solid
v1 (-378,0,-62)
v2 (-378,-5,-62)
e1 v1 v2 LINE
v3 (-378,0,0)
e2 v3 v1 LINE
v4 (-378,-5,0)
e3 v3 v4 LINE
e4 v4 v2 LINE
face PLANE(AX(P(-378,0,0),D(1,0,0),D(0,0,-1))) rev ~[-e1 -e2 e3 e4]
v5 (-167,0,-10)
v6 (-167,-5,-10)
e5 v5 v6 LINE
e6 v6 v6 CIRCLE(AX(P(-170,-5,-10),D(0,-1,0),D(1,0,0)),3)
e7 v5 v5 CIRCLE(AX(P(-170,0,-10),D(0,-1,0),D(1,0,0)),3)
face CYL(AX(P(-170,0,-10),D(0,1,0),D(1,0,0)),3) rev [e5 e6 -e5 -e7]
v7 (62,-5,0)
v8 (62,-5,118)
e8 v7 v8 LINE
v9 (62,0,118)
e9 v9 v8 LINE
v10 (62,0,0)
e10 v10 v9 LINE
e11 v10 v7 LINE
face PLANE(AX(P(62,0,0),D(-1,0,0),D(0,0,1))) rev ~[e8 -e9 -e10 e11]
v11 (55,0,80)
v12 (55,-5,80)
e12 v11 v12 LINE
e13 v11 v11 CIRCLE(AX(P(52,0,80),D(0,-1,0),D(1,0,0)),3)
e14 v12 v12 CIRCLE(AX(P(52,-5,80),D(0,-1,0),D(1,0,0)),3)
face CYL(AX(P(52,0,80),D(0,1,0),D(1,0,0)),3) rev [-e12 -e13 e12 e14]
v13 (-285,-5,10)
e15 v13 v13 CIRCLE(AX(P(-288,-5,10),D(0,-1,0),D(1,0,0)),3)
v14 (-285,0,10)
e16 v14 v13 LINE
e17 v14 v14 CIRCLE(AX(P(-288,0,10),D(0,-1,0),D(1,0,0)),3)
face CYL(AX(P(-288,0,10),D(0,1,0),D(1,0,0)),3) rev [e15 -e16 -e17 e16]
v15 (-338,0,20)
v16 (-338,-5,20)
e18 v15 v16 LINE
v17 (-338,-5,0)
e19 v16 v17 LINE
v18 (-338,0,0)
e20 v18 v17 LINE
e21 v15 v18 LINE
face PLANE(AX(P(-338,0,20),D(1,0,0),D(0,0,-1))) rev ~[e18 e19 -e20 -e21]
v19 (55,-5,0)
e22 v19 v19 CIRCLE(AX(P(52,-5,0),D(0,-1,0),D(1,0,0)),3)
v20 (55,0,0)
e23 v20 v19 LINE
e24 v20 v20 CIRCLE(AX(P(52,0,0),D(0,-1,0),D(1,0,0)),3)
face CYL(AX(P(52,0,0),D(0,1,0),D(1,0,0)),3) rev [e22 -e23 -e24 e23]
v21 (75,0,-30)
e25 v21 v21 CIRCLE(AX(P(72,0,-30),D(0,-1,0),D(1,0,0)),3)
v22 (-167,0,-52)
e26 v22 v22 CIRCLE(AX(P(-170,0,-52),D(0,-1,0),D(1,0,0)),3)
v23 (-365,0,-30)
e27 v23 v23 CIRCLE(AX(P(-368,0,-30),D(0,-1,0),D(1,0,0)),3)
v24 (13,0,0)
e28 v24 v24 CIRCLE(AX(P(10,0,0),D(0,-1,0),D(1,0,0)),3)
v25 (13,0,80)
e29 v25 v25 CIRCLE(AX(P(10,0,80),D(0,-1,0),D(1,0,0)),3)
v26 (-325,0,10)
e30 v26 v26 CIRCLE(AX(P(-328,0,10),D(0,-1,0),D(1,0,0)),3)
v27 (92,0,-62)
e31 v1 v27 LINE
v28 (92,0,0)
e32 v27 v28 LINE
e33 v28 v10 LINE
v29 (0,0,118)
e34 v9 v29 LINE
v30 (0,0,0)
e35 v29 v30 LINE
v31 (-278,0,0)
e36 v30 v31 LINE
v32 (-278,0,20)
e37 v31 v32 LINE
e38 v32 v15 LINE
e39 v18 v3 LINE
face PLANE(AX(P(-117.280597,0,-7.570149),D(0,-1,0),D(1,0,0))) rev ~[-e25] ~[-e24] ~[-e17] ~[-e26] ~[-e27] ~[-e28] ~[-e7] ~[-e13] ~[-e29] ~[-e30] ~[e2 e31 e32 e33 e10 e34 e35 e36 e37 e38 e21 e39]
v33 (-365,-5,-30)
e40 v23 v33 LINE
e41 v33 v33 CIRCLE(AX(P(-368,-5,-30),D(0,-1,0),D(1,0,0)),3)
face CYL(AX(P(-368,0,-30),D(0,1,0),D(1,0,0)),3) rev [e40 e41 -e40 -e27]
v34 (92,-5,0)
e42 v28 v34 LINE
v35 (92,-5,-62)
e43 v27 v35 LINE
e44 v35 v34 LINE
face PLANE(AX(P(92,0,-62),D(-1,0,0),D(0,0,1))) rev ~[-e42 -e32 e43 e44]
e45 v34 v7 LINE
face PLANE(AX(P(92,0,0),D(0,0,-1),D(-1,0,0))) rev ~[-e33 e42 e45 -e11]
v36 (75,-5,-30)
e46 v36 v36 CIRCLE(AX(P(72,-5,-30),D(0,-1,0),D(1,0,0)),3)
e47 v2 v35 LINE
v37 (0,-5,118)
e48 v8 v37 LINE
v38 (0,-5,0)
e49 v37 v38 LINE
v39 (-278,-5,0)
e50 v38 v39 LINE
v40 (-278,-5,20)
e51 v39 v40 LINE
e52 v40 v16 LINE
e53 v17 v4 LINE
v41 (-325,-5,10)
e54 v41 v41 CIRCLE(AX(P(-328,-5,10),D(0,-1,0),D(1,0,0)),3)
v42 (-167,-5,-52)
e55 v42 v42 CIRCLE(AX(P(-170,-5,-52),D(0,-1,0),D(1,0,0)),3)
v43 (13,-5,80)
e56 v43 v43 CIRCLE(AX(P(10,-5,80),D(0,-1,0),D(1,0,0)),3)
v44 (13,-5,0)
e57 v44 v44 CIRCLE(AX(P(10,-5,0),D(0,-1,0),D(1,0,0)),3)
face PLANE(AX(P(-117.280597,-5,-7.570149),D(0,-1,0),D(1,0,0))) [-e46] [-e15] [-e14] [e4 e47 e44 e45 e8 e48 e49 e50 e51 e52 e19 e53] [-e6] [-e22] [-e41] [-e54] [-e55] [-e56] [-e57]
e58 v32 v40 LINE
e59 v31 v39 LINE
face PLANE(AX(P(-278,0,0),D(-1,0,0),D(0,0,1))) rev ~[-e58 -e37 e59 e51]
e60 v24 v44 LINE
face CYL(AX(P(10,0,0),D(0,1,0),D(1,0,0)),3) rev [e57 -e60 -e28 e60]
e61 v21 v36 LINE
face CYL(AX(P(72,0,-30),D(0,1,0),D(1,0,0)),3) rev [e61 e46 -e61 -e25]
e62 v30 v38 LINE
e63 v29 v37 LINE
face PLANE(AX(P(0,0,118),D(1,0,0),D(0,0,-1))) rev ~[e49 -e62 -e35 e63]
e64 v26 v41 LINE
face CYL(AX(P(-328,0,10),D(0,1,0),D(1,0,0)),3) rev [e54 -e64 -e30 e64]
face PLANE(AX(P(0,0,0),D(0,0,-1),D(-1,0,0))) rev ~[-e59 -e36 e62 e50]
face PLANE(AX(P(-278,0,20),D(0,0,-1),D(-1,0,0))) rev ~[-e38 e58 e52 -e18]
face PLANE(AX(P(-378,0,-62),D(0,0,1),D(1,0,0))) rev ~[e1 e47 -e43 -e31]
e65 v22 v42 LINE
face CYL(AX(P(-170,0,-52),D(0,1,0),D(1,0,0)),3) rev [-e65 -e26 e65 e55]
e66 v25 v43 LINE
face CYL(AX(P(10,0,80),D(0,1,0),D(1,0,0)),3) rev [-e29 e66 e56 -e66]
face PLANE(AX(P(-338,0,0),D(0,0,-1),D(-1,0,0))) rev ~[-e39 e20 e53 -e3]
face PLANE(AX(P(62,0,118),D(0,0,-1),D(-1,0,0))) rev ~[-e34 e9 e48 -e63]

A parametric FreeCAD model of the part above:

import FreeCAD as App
import Part
import Sketcher

V = App.Vector
Q = App.Units.Quantity


def add_polygon(sketch, points):
    """Adds a closed chain of lines whose ends are joined by coincident constraints."""
    first, n = sketch.GeometryCount, len(points)
    for a, b in zip(points, points[1:] + points[:1]):
        sketch.addGeometry(Part.LineSegment(App.Vector(*a, 0), App.Vector(*b, 0)), False)
    for i in range(n):
        sketch.addConstraint(Sketcher.Constraint("Coincident", first + i, 2, first + (i + 1) % n, 1))

doc = App.newDocument("Part")
body = doc.addObject("PartDesign::Body", "Body")

# Sketch on XZ plane
sketch1 = body.newObject("Sketcher::SketchObject", "Sketch")
sketch1.AttachmentSupport = (doc.getObject("XZ_Plane"), [""])
sketch1.MapMode = "FlatFace"
add_polygon(sketch1, [(62, 118), (0, 118), (0, 0), (-278, 0), (-278, 20), (-338, 20), (-338, 0), (-378, 0), (-378, -62), (92, -62), (92, 0), (62, 0)])  # lines 0-11
sketch1.addGeometry(Part.Circle(V(-368, -30, 0), V(0, 0, 1), 3), False)  # 12
sketch1.addGeometry(Part.Circle(V(-170, -52, 0), V(0, 0, 1), 3), False)  # 13
sketch1.addGeometry(Part.Circle(V(-328, 10, 0), V(0, 0, 1), 3), False)  # 14
sketch1.addGeometry(Part.Circle(V(-288, 10, 0), V(0, 0, 1), 3), False)  # 15
sketch1.addGeometry(Part.Circle(V(-170, -10, 0), V(0, 0, 1), 3), False)  # 16
sketch1.addGeometry(Part.Circle(V(72, -30, 0), V(0, 0, 1), 3), False)  # 17
sketch1.addGeometry(Part.Circle(V(10, 0, 0), V(0, 0, 1), 3), False)  # 18
sketch1.addGeometry(Part.Circle(V(52, 0, 0), V(0, 0, 1), 3), False)  # 19
sketch1.addGeometry(Part.Circle(V(10, 80, 0), V(0, 0, 1), 3), False)  # 20
sketch1.addGeometry(Part.Circle(V(52, 80, 0), V(0, 0, 1), 3), False)  # 21
sketch1.addConstraint(Sketcher.Constraint("Horizontal", 0))
sketch1.addConstraint(Sketcher.Constraint("Vertical", 1))
sketch1.addConstraint(Sketcher.Constraint("Horizontal", 2))
sketch1.addConstraint(Sketcher.Constraint("Vertical", 3))
sketch1.addConstraint(Sketcher.Constraint("Horizontal", 4))
sketch1.addConstraint(Sketcher.Constraint("Vertical", 5))
sketch1.addConstraint(Sketcher.Constraint("Horizontal", 6))
sketch1.addConstraint(Sketcher.Constraint("Vertical", 7))
sketch1.addConstraint(Sketcher.Constraint("Horizontal", 8))
sketch1.addConstraint(Sketcher.Constraint("Vertical", 9))
sketch1.addConstraint(Sketcher.Constraint("Horizontal", 10))
sketch1.addConstraint(Sketcher.Constraint("Vertical", 11))
sketch1.addConstraint(Sketcher.Constraint("Coincident", 1, 2, -1, 1))
sketch1.addConstraint(Sketcher.Constraint("Equal", 12, 13))
sketch1.addConstraint(Sketcher.Constraint("Equal", 13, 14))
sketch1.addConstraint(Sketcher.Constraint("Equal", 14, 15))
sketch1.addConstraint(Sketcher.Constraint("Equal", 15, 16))
sketch1.addConstraint(Sketcher.Constraint("Equal", 16, 17))
sketch1.addConstraint(Sketcher.Constraint("Equal", 17, 18))
sketch1.addConstraint(Sketcher.Constraint("Equal", 18, 19))
sketch1.addConstraint(Sketcher.Constraint("Equal", 19, 20))
sketch1.addConstraint(Sketcher.Constraint("Equal", 20, 21))
sketch1.addConstraint(Sketcher.Constraint("PointOnObject", 18, 3, -1))
sketch1.addConstraint(Sketcher.Constraint("PointOnObject", 19, 3, -1))
sketch1.addConstraint(Sketcher.Constraint("PointOnObject", 5, 2, -1))
sketch1.addConstraint(Sketcher.Constraint("PointOnObject", 9, 2, -1))
sketch1.addConstraint(Sketcher.Constraint("Horizontal", 14, 3, 15, 3))
sketch1.addConstraint(Sketcher.Constraint("Horizontal", 12, 3, 17, 3))
sketch1.addConstraint(Sketcher.Constraint("Horizontal", 20, 3, 21, 3))
sketch1.addConstraint(Sketcher.Constraint("Vertical", 13, 3, 16, 3))
sketch1.addConstraint(Sketcher.Constraint("Vertical", 18, 3, 20, 3))
sketch1.addConstraint(Sketcher.Constraint("Vertical", 19, 3, 21, 3))
sketch1.addConstraint(Sketcher.Constraint("Equal", 0, 7))
sketch1.addConstraint(Sketcher.Constraint("Diameter", 12, Q("6 mm")))
sketch1.addConstraint(Sketcher.Constraint("DistanceX", 0, 2, 0, 1, Q("62 mm")))
sketch1.addConstraint(Sketcher.Constraint("DistanceX", 2, 2, 2, 1, Q("278 mm")))
sketch1.addConstraint(Sketcher.Constraint("DistanceX", 4, 2, 4, 1, Q("60 mm")))
sketch1.addConstraint(Sketcher.Constraint("DistanceX", 6, 2, 6, 1, Q("40 mm")))
sketch1.addConstraint(Sketcher.Constraint("DistanceX", 8, 1, 8, 2, Q("470 mm")))
sketch1.addConstraint(Sketcher.Constraint("DistanceY", 1, 2, 1, 1, Q("118 mm")))
sketch1.addConstraint(Sketcher.Constraint("DistanceY", 3, 1, 3, 2, Q("20 mm")))
sketch1.addConstraint(Sketcher.Constraint("DistanceX", 12, 3, -1, 1, Q("368 mm")))
sketch1.addConstraint(Sketcher.Constraint("DistanceY", 12, 3, -1, 1, Q("30 mm")))
sketch1.addConstraint(Sketcher.Constraint("DistanceX", 13, 3, -1, 1, Q("170 mm")))
sketch1.addConstraint(Sketcher.Constraint("DistanceY", 13, 3, -1, 1, Q("52 mm")))
sketch1.addConstraint(Sketcher.Constraint("DistanceX", 14, 3, -1, 1, Q("328 mm")))
sketch1.addConstraint(Sketcher.Constraint("DistanceY", -1, 1, 14, 3, Q("10 mm")))
sketch1.addConstraint(Sketcher.Constraint("DistanceX", 15, 3, -1, 1, Q("288 mm")))
sketch1.addConstraint(Sketcher.Constraint("DistanceY", 16, 3, -1, 1, Q("10 mm")))
sketch1.addConstraint(Sketcher.Constraint("DistanceX", -1, 1, 17, 3, Q("72 mm")))
sketch1.addConstraint(Sketcher.Constraint("DistanceX", -1, 1, 18, 3, Q("10 mm")))
sketch1.addConstraint(Sketcher.Constraint("DistanceX", -1, 1, 19, 3, Q("52 mm")))
sketch1.addConstraint(Sketcher.Constraint("DistanceY", -1, 1, 20, 3, Q("80 mm")))
pad1 = body.newObject("PartDesign::Pad", "Pad")
pad1.Profile = sketch1
pad1.Length = 5

doc.recompute()
